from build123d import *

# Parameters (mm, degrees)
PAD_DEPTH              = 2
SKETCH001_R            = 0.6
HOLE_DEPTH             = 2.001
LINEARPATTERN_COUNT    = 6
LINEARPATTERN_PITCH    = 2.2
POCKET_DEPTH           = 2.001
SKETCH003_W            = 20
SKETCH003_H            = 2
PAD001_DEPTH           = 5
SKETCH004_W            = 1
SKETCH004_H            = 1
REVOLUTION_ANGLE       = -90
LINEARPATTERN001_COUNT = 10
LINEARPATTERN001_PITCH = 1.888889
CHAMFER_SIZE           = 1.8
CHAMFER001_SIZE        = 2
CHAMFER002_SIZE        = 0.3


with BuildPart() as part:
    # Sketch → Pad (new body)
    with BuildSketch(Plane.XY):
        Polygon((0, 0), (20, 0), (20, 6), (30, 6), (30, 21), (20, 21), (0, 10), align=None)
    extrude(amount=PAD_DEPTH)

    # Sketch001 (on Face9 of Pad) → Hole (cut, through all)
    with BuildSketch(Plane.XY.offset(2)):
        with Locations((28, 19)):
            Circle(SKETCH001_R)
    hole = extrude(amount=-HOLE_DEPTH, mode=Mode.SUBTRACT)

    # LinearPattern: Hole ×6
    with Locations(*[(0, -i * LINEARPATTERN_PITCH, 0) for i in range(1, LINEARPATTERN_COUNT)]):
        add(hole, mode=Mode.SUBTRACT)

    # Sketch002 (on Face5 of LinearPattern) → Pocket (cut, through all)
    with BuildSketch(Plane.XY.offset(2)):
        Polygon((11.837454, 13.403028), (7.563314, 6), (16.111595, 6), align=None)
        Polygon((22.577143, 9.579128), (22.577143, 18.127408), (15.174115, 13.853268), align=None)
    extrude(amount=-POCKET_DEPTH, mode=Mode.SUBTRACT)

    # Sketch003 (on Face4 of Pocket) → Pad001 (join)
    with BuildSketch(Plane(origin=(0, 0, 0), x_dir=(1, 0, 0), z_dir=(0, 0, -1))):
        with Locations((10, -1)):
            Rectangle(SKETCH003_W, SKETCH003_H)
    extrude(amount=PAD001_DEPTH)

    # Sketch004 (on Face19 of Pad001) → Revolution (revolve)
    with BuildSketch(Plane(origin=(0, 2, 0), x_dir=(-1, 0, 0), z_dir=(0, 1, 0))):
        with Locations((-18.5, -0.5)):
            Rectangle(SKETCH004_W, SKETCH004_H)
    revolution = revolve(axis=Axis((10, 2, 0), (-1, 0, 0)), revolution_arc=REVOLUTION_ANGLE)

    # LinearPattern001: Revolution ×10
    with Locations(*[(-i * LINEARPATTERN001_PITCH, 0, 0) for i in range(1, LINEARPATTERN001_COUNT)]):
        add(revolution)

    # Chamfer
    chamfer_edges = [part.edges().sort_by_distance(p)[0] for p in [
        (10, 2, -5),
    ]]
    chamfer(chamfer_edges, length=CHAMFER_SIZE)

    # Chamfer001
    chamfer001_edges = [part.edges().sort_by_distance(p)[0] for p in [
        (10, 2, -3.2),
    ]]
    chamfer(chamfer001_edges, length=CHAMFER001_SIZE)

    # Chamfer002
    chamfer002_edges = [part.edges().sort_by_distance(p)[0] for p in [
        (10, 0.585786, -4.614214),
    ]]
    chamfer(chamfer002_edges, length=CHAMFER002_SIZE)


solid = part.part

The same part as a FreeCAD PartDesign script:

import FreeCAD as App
import Part
import Sketcher

V = App.Vector
Q = App.Units.Quantity


def edges_at(feature, points):
    """Names of the edges that pass closest to the given points."""
    edges = feature.Shape.Edges
    near = lambda p: min(range(len(edges)), key=lambda i: edges[i].distToShape(Part.Vertex(*p))[0])
    return sorted({f"Edge{near(p) + 1}" for p in points})

doc = App.newDocument("Part")
body = doc.addObject("PartDesign::Body", "Body")

# Sketch on XY plane
sketch1 = body.newObject("Sketcher::SketchObject", "Sketch")
sketch1.AttachmentSupport = (doc.getObject("XY_Plane"), [""])
sketch1.MapMode = "FlatFace"
sketch1.addGeometry([
    Part.LineSegment(V(0, 0, 0), V(20, 0, 0)),  # 0
    Part.LineSegment(V(20, 0, 0), V(20, 6, 0)),  # 1
    Part.LineSegment(V(20, 6, 0), V(30, 6, 0)),  # 2
    Part.LineSegment(V(30, 6, 0), V(30, 21, 0)),  # 3
    Part.LineSegment(V(30, 21, 0), V(20, 21, 0)),  # 4
    Part.LineSegment(V(20, 21, 0), V(0, 10, 0)),  # 5
    Part.LineSegment(V(0, 10, 0), V(0, 0, 0)),  # 6
], False)
sketch1.addConstraint([
    Sketcher.Constraint("Coincident", 0, 2, 1, 1),
    Sketcher.Constraint("Coincident", 1, 2, 2, 1),
    Sketcher.Constraint("Coincident", 2, 2, 3, 1),
    Sketcher.Constraint("Coincident", 3, 2, 4, 1),
    Sketcher.Constraint("Coincident", 4, 2, 5, 1),
    Sketcher.Constraint("Coincident", 5, 2, 6, 1),
    Sketcher.Constraint("Coincident", 6, 2, 0, 1),
    Sketcher.Constraint("Horizontal", 0),
    Sketcher.Constraint("Vertical", 1),
    Sketcher.Constraint("Horizontal", 2),
    Sketcher.Constraint("Vertical", 3),
    Sketcher.Constraint("Horizontal", 4),
    Sketcher.Constraint("Vertical", 6),
    Sketcher.Constraint("Coincident", 6, 2, -1, 1),
    Sketcher.Constraint("Vertical", 1, 2, 4, 2),
    Sketcher.Constraint("Equal", 4, 6),
    Sketcher.Constraint("DistanceX", 0, 1, 0, 2, Q("20 mm")),
    Sketcher.Constraint("DistanceX", 2, 1, 2, 2, Q("10 mm")),
    Sketcher.Constraint("DistanceY", 1, 1, 1, 2, Q("6 mm")),
    Sketcher.Constraint("DistanceY", 3, 1, 3, 2, Q("15 mm")),
])
pad1 = body.newObject("PartDesign::Pad", "Pad")
pad1.Profile = sketch1
pad1.Length = 2

# Sketch on XY plane
sketch2 = body.newObject("Sketcher::SketchObject", "Sketch001")
sketch2.AttachmentSupport = (doc.getObject("XY_Plane"), [""])
sketch2.MapMode = "FlatFace"
sketch2.AttachmentOffset = App.Placement(V(0, 0, 2), App.Rotation())
sketch2.addGeometry(Part.Circle(V(28, 19, 0), V(0, 0, 1), 0.6), False)
sketch2.addConstraint([
    Sketcher.Constraint("Diameter", 0, Q("1.2 mm")),
    Sketcher.Constraint("DistanceX", -1, 1, 0, 3, Q("28 mm")),
    Sketcher.Constraint("DistanceY", -1, 1, 0, 3, Q("19 mm")),
])
pocket1 = body.newObject("PartDesign::Pocket", "Pocket")
pocket1.Profile = sketch2
pocket1.Type = "ThroughAll"
doc.recompute()

linearpattern = body.newObject("PartDesign::LinearPattern", "LinearPattern")
linearpattern.Originals = [pocket1]
linearpattern.Direction = (doc.getObject("Y_Axis"), [""])
linearpattern.Mode = "offset"
linearpattern.Offset = 2.2
linearpattern.Occurrences = 6
linearpattern.Reversed = True
body.Tip = linearpattern

# Sketch on XY plane
sketch3 = body.newObject("Sketcher::SketchObject", "Sketch002")
sketch3.AttachmentSupport = (doc.getObject("XY_Plane"), [""])
sketch3.MapMode = "FlatFace"
sketch3.AttachmentOffset = App.Placement(V(0, 0, 2), App.Rotation())
sketch3.addGeometry([
    Part.LineSegment(V(12, 13, 0), V(8, 6, 0)),  # 0
    Part.LineSegment(V(8, 6, 0), V(16, 6, 0)),  # 1
    Part.LineSegment(V(16, 6, 0), V(12, 13, 0)),  # 2
    Part.LineSegment(V(23, 10, 0), V(23, 18, 0)),  # 3
    Part.LineSegment(V(23, 18, 0), V(15, 14, 0)),  # 4
    Part.LineSegment(V(15, 14, 0), V(23, 10, 0)),  # 5
], False)
sketch3.addConstraint([
    Sketcher.Constraint("Coincident", 0, 2, 1, 1),
    Sketcher.Constraint("Coincident", 1, 2, 2, 1),
    Sketcher.Constraint("Coincident", 2, 2, 0, 1),
    Sketcher.Constraint("Coincident", 3, 2, 4, 1),
    Sketcher.Constraint("Coincident", 4, 2, 5, 1),
    Sketcher.Constraint("Coincident", 5, 2, 3, 1),
    Sketcher.Constraint("Horizontal", 1),
    Sketcher.Constraint("Vertical", 3),
    Sketcher.Constraint("Perpendicular", 2, 4),
    Sketcher.Constraint("Perpendicular", 0, 5),
    Sketcher.Constraint("Equal", 1, 3),
    Sketcher.Constraint("Equal", 0, 2),
    Sketcher.Constraint("Angle", 0, Q("-119.999999 deg")),
    Sketcher.Constraint("DistanceY", -1, 1, 0, 2, Q("6 mm")),
    Sketcher.Constraint("DistanceX", 1, 1, 1, 2, Q("8.548281 mm")),
    Sketcher.Constraint("DistanceX", 0, 2, 4, 2, Q("7.610801 mm")),
    Sketcher.Constraint("DistanceY", 5, 2, 2, 2, Q("3.8239 mm")),
    Sketcher.Constraint("DistanceX", -1, 1, 0, 2, Q("7.563314 mm")),
])
pocket2 = body.newObject("PartDesign::Pocket", "Pocket001")
pocket2.Profile = sketch3
pocket2.Type = "ThroughAll"

# Sketch on XY plane
sketch4 = body.newObject("Sketcher::SketchObject", "Sketch003")
sketch4.AttachmentSupport = (doc.getObject("XY_Plane"), [""])
sketch4.MapMode = "FlatFace"
sketch4.addGeometry([
    Part.LineSegment(V(0, 0, 0), V(0, 2, 0)),
    Part.LineSegment(V(0, 2, 0), V(20, 2, 0)),
    Part.LineSegment(V(20, 2, 0), V(20, 0, 0)),
    Part.LineSegment(V(20, 0, 0), V(0, 0, 0)),
], False)
sketch4.addConstraint([
    Sketcher.Constraint("Coincident", 0, 2, 1, 1),
    Sketcher.Constraint("Coincident", 1, 2, 2, 1),
    Sketcher.Constraint("Coincident", 2, 2, 3, 1),
    Sketcher.Constraint("Coincident", 3, 2, 0, 1),
    Sketcher.Constraint("Vertical", 0),
    Sketcher.Constraint("Horizontal", 1),
    Sketcher.Constraint("Vertical", 2),
    Sketcher.Constraint("Horizontal", 3),
    Sketcher.Constraint("Coincident", 3, 2, -1, 1),
    Sketcher.Constraint("DistanceX", 1, 1, 1, 2, Q("20 mm")),
    Sketcher.Constraint("DistanceY", 0, 1, 0, 2, Q("2 mm")),
])
pad2 = body.newObject("PartDesign::Pad", "Pad001")
pad2.Profile = sketch4
pad2.Length = 5
pad2.Reversed = True

# Sketch on XZ plane
sketch5 = body.newObject("Sketcher::SketchObject", "Sketch004")
sketch5.AttachmentSupport = (doc.getObject("XZ_Plane"), [""])
sketch5.MapMode = "FlatFace"
sketch5.AttachmentOffset = App.Placement(V(0, 0, -2), App.Rotation())
sketch5.addGeometry([
    Part.LineSegment(V(19, 0, 0), V(19, -1, 0)),
    Part.LineSegment(V(19, -1, 0), V(18, -1, 0)),
    Part.LineSegment(V(18, -1, 0), V(18, 0, 0)),
    Part.LineSegment(V(18, 0, 0), V(19, 0, 0)),
], False)
sketch5.addConstraint([
    Sketcher.Constraint("Coincident", 0, 2, 1, 1),
    Sketcher.Constraint("Coincident", 1, 2, 2, 1),
    Sketcher.Constraint("Coincident", 2, 2, 3, 1),
    Sketcher.Constraint("Coincident", 3, 2, 0, 1),
    Sketcher.Constraint("Vertical", 0),
    Sketcher.Constraint("Horizontal", 1),
    Sketcher.Constraint("Vertical", 2),
    Sketcher.Constraint("Horizontal", 3),
    Sketcher.Constraint("PointOnObject", 2, 2, -1),
    Sketcher.Constraint("Equal", 3, 0),
    Sketcher.Constraint("DistanceX", 1, 2, 1, 1, Q("1 mm")),
    Sketcher.Constraint("DistanceX", -1, 1, 0, 2, Q("19 mm")),
])
revolution = body.newObject("PartDesign::Revolution", "Revolution")
revolution.Profile = sketch5
revolution.ReferenceAxis = (sketch5, ["H_Axis"])
revolution.Angle = 90
doc.recompute()

linearpattern2 = body.newObject("PartDesign::LinearPattern", "LinearPattern001")
linearpattern2.Originals = [revolution]
linearpattern2.Direction = (doc.getObject("X_Axis"), [""])
linearpattern2.Mode = "offset"
linearpattern2.Offset = 1.888889
linearpattern2.Occurrences = 10
linearpattern2.Reversed = True
body.Tip = linearpattern2
doc.recompute()

chamfer = body.newObject("PartDesign::Chamfer", "Chamfer")
chamfer.Base = (linearpattern2, edges_at(linearpattern2, [(10, 2, -5)]))
chamfer.Size = 1.8
doc.recompute()

chamfer2 = body.newObject("PartDesign::Chamfer", "Chamfer001")
chamfer2.Base = (chamfer, edges_at(chamfer, [(10, 2, -3.2)]))
chamfer2.Size = 2
doc.recompute()

chamfer3 = body.newObject("PartDesign::Chamfer", "Chamfer002")
chamfer3.Base = (chamfer2, edges_at(chamfer2, [(10, 0.586, -4.614)]))
chamfer3.Size = 0.3

doc.recompute()
